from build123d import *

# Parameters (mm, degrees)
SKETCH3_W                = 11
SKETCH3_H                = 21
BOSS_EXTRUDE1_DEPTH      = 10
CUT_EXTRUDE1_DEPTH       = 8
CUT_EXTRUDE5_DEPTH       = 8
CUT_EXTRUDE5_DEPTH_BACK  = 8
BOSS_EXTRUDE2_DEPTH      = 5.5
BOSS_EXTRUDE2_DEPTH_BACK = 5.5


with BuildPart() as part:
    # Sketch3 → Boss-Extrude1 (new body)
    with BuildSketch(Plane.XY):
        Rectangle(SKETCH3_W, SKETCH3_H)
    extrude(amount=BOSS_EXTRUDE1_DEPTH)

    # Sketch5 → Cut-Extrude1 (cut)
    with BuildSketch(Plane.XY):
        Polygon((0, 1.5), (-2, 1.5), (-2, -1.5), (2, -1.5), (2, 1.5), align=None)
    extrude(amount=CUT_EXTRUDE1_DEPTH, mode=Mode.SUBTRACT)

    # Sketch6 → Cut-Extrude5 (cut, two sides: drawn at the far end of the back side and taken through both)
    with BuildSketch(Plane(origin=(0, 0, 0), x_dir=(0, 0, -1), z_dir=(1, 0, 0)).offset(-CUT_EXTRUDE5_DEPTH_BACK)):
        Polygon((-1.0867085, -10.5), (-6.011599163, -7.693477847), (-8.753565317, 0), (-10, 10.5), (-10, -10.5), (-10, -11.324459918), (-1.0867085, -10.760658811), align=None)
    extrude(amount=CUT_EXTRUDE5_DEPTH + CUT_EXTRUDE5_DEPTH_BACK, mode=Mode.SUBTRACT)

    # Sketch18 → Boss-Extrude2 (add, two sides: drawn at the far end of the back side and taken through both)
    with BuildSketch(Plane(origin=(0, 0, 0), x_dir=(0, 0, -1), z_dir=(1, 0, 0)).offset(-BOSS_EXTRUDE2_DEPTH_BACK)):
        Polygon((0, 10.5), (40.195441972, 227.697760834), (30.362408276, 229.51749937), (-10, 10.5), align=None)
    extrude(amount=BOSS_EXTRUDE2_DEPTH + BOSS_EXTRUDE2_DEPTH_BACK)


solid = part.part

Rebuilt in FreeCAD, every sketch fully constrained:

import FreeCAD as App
import Part
import Sketcher

V = App.Vector


def add_polygon(sketch, points):
    """Adds a closed chain of lines whose ends are joined by coincident constraints."""
    first, n = sketch.GeometryCount, len(points)
    for a, b in zip(points, points[1:] + points[:1]):
        sketch.addGeometry(Part.LineSegment(App.Vector(*a, 0), App.Vector(*b, 0)), False)
    for i in range(n):
        sketch.addConstraint(Sketcher.Constraint("Coincident", first + i, 2, first + (i + 1) % n, 1))

doc = App.newDocument("Part")
body = doc.addObject("PartDesign::Body", "Body")

# Sketch on XY plane
sketch1 = doc.addObject("Sketcher::SketchObject", "Sketch")
body.addObject(sketch1)
sketch1.AttachmentSupport = (doc.XY_Plane, [""])
sketch1.MapMode = "FlatFace"
add_polygon(sketch1, [(-6, 10), (-6, -10), (6, -10), (6, 10)])  # lines 0-3
sketch1.addConstraint(Sketcher.Constraint("Vertical", 0))
sketch1.addConstraint(Sketcher.Constraint("Horizontal", 1))
sketch1.addConstraint(Sketcher.Constraint("Vertical", 2))
sketch1.addConstraint(Sketcher.Constraint("Horizontal", 3))
sketch1.addConstraint(Sketcher.Constraint("Symmetric", 0, 2, 2, 2, -1, 1))
sketch1.addConstraint(Sketcher.Constraint("DistanceX", 1, 1, 1, 2, 11.0))
sketch1.addConstraint(Sketcher.Constraint("DistanceY", 0, 2, 0, 1, 21.0))
pad1 = doc.addObject("PartDesign::Pad", "Pad")
body.addObject(pad1)
pad1.Profile = sketch1
pad1.Length = 10

# Sketch on XY plane
sketch2 = doc.addObject("Sketcher::SketchObject", "Sketch001")
body.addObject(sketch2)
sketch2.AttachmentSupport = (doc.XY_Plane, [""])
sketch2.MapMode = "FlatFace"
add_polygon(sketch2, [(-2, 1.5), (-2, -1.5), (2, -1.5), (2, 1.5)])  # lines 0-3
sketch2.addConstraint(Sketcher.Constraint("Vertical", 0))
sketch2.addConstraint(Sketcher.Constraint("Horizontal", 1))
sketch2.addConstraint(Sketcher.Constraint("Vertical", 2))
sketch2.addConstraint(Sketcher.Constraint("Horizontal", 3))
sketch2.addConstraint(Sketcher.Constraint("Symmetric", 0, 2, 2, 2, -1, 1))
sketch2.addConstraint(Sketcher.Constraint("DistanceX", 1, 1, 1, 2, 4.0))
sketch2.addConstraint(Sketcher.Constraint("DistanceY", 0, 2, 0, 1, 3.0))
pocket1 = doc.addObject("PartDesign::Pocket", "Pocket")
body.addObject(pocket1)
pocket1.Profile = sketch2
pocket1.Length = 8
pocket1.Reversed = True

# Sketch on YZ plane
sketch3 = doc.addObject("Sketcher::SketchObject", "Sketch002")
body.addObject(sketch3)
sketch3.AttachmentSupport = (doc.YZ_Plane, [""])
sketch3.MapMode = "FlatFace"
add_polygon(sketch3, [(-10.5, 1.09), (-7.69, 6.01), (0, 8.75), (10.5, 10), (-11.32, 10), (-10.76, 1.09)])  # lines 0-5
sketch3.addConstraint(Sketcher.Constraint("Horizontal", 3))
sketch3.addConstraint(Sketcher.Constraint("Horizontal", 5))
sketch3.addConstraint(Sketcher.Constraint("PointOnObject", 1, 2, -2))
sketch3.addConstraint(Sketcher.Constraint("DistanceY", -1, 1, 2, 2, 10.0))
sketch3.addConstraint(Sketcher.Constraint("DistanceX", 5, 2, 2, 2, 21.0))
sketch3.addConstraint(Sketcher.Constraint("DistanceX", -1, 1, 2, 2, 10.5))
sketch3.addConstraint(Sketcher.Constraint("DistanceX", 3, 2, 3, 1, 21.82446))
sketch3.addConstraint(Sketcher.Constraint("DistanceX", 5, 1, 5, 2, 0.260659))
sketch3.addConstraint(Sketcher.Constraint("DistanceY", -1, 1, 0, 2, 6.011599))
sketch3.addConstraint(Sketcher.Constraint("Distance", 0, 5.668431))
sketch3.addConstraint(Sketcher.Constraint("DistanceY", -1, 1, 4, 2, 1.086709))
sketch3.addConstraint(Sketcher.Constraint("Distance", 1, 8.167495))
pocket2 = doc.addObject("PartDesign::Pocket", "Pocket001")
body.addObject(pocket2)
pocket2.Profile = sketch3
pocket2.Type = "ThroughAll"
pocket2.Midplane = True

# Sketch on YZ plane
sketch4 = doc.addObject("Sketcher::SketchObject", "Sketch003")
body.addObject(sketch4)
sketch4.AttachmentSupport = (doc.YZ_Plane, [""])
sketch4.MapMode = "FlatFace"
add_polygon(sketch4, [(10, 0), (228, -40), (230, -30), (10, 10)])  # lines 0-3
sketch4.addConstraint(Sketcher.Constraint("Vertical", 3))
sketch4.addConstraint(Sketcher.Constraint("PointOnObject", 3, 2, -1))
sketch4.addConstraint(Sketcher.Constraint("Perpendicular", 0, 1))
sketch4.addConstraint(Sketcher.Constraint("DistanceY", 3, 2, 3, 1, 10.0))
sketch4.addConstraint(Sketcher.Constraint("Distance", 1, 10.0))
sketch4.addConstraint(Sketcher.Constraint("DistanceX", -1, 1, 2, 2, 10.5))
sketch4.addConstraint(Sketcher.Constraint("DistanceX", -1, 1, 1, 2, 229.517499))
sketch4.addConstraint(Sketcher.Constraint("Distance", 0, 220.88581))
pad2 = doc.addObject("PartDesign::Pad", "Pad001")
body.addObject(pad2)
pad2.Profile = sketch4
pad2.Type = "TwoLengths"
pad2.Length = 5.5
pad2.Length2 = 5.5

doc.recompute()
